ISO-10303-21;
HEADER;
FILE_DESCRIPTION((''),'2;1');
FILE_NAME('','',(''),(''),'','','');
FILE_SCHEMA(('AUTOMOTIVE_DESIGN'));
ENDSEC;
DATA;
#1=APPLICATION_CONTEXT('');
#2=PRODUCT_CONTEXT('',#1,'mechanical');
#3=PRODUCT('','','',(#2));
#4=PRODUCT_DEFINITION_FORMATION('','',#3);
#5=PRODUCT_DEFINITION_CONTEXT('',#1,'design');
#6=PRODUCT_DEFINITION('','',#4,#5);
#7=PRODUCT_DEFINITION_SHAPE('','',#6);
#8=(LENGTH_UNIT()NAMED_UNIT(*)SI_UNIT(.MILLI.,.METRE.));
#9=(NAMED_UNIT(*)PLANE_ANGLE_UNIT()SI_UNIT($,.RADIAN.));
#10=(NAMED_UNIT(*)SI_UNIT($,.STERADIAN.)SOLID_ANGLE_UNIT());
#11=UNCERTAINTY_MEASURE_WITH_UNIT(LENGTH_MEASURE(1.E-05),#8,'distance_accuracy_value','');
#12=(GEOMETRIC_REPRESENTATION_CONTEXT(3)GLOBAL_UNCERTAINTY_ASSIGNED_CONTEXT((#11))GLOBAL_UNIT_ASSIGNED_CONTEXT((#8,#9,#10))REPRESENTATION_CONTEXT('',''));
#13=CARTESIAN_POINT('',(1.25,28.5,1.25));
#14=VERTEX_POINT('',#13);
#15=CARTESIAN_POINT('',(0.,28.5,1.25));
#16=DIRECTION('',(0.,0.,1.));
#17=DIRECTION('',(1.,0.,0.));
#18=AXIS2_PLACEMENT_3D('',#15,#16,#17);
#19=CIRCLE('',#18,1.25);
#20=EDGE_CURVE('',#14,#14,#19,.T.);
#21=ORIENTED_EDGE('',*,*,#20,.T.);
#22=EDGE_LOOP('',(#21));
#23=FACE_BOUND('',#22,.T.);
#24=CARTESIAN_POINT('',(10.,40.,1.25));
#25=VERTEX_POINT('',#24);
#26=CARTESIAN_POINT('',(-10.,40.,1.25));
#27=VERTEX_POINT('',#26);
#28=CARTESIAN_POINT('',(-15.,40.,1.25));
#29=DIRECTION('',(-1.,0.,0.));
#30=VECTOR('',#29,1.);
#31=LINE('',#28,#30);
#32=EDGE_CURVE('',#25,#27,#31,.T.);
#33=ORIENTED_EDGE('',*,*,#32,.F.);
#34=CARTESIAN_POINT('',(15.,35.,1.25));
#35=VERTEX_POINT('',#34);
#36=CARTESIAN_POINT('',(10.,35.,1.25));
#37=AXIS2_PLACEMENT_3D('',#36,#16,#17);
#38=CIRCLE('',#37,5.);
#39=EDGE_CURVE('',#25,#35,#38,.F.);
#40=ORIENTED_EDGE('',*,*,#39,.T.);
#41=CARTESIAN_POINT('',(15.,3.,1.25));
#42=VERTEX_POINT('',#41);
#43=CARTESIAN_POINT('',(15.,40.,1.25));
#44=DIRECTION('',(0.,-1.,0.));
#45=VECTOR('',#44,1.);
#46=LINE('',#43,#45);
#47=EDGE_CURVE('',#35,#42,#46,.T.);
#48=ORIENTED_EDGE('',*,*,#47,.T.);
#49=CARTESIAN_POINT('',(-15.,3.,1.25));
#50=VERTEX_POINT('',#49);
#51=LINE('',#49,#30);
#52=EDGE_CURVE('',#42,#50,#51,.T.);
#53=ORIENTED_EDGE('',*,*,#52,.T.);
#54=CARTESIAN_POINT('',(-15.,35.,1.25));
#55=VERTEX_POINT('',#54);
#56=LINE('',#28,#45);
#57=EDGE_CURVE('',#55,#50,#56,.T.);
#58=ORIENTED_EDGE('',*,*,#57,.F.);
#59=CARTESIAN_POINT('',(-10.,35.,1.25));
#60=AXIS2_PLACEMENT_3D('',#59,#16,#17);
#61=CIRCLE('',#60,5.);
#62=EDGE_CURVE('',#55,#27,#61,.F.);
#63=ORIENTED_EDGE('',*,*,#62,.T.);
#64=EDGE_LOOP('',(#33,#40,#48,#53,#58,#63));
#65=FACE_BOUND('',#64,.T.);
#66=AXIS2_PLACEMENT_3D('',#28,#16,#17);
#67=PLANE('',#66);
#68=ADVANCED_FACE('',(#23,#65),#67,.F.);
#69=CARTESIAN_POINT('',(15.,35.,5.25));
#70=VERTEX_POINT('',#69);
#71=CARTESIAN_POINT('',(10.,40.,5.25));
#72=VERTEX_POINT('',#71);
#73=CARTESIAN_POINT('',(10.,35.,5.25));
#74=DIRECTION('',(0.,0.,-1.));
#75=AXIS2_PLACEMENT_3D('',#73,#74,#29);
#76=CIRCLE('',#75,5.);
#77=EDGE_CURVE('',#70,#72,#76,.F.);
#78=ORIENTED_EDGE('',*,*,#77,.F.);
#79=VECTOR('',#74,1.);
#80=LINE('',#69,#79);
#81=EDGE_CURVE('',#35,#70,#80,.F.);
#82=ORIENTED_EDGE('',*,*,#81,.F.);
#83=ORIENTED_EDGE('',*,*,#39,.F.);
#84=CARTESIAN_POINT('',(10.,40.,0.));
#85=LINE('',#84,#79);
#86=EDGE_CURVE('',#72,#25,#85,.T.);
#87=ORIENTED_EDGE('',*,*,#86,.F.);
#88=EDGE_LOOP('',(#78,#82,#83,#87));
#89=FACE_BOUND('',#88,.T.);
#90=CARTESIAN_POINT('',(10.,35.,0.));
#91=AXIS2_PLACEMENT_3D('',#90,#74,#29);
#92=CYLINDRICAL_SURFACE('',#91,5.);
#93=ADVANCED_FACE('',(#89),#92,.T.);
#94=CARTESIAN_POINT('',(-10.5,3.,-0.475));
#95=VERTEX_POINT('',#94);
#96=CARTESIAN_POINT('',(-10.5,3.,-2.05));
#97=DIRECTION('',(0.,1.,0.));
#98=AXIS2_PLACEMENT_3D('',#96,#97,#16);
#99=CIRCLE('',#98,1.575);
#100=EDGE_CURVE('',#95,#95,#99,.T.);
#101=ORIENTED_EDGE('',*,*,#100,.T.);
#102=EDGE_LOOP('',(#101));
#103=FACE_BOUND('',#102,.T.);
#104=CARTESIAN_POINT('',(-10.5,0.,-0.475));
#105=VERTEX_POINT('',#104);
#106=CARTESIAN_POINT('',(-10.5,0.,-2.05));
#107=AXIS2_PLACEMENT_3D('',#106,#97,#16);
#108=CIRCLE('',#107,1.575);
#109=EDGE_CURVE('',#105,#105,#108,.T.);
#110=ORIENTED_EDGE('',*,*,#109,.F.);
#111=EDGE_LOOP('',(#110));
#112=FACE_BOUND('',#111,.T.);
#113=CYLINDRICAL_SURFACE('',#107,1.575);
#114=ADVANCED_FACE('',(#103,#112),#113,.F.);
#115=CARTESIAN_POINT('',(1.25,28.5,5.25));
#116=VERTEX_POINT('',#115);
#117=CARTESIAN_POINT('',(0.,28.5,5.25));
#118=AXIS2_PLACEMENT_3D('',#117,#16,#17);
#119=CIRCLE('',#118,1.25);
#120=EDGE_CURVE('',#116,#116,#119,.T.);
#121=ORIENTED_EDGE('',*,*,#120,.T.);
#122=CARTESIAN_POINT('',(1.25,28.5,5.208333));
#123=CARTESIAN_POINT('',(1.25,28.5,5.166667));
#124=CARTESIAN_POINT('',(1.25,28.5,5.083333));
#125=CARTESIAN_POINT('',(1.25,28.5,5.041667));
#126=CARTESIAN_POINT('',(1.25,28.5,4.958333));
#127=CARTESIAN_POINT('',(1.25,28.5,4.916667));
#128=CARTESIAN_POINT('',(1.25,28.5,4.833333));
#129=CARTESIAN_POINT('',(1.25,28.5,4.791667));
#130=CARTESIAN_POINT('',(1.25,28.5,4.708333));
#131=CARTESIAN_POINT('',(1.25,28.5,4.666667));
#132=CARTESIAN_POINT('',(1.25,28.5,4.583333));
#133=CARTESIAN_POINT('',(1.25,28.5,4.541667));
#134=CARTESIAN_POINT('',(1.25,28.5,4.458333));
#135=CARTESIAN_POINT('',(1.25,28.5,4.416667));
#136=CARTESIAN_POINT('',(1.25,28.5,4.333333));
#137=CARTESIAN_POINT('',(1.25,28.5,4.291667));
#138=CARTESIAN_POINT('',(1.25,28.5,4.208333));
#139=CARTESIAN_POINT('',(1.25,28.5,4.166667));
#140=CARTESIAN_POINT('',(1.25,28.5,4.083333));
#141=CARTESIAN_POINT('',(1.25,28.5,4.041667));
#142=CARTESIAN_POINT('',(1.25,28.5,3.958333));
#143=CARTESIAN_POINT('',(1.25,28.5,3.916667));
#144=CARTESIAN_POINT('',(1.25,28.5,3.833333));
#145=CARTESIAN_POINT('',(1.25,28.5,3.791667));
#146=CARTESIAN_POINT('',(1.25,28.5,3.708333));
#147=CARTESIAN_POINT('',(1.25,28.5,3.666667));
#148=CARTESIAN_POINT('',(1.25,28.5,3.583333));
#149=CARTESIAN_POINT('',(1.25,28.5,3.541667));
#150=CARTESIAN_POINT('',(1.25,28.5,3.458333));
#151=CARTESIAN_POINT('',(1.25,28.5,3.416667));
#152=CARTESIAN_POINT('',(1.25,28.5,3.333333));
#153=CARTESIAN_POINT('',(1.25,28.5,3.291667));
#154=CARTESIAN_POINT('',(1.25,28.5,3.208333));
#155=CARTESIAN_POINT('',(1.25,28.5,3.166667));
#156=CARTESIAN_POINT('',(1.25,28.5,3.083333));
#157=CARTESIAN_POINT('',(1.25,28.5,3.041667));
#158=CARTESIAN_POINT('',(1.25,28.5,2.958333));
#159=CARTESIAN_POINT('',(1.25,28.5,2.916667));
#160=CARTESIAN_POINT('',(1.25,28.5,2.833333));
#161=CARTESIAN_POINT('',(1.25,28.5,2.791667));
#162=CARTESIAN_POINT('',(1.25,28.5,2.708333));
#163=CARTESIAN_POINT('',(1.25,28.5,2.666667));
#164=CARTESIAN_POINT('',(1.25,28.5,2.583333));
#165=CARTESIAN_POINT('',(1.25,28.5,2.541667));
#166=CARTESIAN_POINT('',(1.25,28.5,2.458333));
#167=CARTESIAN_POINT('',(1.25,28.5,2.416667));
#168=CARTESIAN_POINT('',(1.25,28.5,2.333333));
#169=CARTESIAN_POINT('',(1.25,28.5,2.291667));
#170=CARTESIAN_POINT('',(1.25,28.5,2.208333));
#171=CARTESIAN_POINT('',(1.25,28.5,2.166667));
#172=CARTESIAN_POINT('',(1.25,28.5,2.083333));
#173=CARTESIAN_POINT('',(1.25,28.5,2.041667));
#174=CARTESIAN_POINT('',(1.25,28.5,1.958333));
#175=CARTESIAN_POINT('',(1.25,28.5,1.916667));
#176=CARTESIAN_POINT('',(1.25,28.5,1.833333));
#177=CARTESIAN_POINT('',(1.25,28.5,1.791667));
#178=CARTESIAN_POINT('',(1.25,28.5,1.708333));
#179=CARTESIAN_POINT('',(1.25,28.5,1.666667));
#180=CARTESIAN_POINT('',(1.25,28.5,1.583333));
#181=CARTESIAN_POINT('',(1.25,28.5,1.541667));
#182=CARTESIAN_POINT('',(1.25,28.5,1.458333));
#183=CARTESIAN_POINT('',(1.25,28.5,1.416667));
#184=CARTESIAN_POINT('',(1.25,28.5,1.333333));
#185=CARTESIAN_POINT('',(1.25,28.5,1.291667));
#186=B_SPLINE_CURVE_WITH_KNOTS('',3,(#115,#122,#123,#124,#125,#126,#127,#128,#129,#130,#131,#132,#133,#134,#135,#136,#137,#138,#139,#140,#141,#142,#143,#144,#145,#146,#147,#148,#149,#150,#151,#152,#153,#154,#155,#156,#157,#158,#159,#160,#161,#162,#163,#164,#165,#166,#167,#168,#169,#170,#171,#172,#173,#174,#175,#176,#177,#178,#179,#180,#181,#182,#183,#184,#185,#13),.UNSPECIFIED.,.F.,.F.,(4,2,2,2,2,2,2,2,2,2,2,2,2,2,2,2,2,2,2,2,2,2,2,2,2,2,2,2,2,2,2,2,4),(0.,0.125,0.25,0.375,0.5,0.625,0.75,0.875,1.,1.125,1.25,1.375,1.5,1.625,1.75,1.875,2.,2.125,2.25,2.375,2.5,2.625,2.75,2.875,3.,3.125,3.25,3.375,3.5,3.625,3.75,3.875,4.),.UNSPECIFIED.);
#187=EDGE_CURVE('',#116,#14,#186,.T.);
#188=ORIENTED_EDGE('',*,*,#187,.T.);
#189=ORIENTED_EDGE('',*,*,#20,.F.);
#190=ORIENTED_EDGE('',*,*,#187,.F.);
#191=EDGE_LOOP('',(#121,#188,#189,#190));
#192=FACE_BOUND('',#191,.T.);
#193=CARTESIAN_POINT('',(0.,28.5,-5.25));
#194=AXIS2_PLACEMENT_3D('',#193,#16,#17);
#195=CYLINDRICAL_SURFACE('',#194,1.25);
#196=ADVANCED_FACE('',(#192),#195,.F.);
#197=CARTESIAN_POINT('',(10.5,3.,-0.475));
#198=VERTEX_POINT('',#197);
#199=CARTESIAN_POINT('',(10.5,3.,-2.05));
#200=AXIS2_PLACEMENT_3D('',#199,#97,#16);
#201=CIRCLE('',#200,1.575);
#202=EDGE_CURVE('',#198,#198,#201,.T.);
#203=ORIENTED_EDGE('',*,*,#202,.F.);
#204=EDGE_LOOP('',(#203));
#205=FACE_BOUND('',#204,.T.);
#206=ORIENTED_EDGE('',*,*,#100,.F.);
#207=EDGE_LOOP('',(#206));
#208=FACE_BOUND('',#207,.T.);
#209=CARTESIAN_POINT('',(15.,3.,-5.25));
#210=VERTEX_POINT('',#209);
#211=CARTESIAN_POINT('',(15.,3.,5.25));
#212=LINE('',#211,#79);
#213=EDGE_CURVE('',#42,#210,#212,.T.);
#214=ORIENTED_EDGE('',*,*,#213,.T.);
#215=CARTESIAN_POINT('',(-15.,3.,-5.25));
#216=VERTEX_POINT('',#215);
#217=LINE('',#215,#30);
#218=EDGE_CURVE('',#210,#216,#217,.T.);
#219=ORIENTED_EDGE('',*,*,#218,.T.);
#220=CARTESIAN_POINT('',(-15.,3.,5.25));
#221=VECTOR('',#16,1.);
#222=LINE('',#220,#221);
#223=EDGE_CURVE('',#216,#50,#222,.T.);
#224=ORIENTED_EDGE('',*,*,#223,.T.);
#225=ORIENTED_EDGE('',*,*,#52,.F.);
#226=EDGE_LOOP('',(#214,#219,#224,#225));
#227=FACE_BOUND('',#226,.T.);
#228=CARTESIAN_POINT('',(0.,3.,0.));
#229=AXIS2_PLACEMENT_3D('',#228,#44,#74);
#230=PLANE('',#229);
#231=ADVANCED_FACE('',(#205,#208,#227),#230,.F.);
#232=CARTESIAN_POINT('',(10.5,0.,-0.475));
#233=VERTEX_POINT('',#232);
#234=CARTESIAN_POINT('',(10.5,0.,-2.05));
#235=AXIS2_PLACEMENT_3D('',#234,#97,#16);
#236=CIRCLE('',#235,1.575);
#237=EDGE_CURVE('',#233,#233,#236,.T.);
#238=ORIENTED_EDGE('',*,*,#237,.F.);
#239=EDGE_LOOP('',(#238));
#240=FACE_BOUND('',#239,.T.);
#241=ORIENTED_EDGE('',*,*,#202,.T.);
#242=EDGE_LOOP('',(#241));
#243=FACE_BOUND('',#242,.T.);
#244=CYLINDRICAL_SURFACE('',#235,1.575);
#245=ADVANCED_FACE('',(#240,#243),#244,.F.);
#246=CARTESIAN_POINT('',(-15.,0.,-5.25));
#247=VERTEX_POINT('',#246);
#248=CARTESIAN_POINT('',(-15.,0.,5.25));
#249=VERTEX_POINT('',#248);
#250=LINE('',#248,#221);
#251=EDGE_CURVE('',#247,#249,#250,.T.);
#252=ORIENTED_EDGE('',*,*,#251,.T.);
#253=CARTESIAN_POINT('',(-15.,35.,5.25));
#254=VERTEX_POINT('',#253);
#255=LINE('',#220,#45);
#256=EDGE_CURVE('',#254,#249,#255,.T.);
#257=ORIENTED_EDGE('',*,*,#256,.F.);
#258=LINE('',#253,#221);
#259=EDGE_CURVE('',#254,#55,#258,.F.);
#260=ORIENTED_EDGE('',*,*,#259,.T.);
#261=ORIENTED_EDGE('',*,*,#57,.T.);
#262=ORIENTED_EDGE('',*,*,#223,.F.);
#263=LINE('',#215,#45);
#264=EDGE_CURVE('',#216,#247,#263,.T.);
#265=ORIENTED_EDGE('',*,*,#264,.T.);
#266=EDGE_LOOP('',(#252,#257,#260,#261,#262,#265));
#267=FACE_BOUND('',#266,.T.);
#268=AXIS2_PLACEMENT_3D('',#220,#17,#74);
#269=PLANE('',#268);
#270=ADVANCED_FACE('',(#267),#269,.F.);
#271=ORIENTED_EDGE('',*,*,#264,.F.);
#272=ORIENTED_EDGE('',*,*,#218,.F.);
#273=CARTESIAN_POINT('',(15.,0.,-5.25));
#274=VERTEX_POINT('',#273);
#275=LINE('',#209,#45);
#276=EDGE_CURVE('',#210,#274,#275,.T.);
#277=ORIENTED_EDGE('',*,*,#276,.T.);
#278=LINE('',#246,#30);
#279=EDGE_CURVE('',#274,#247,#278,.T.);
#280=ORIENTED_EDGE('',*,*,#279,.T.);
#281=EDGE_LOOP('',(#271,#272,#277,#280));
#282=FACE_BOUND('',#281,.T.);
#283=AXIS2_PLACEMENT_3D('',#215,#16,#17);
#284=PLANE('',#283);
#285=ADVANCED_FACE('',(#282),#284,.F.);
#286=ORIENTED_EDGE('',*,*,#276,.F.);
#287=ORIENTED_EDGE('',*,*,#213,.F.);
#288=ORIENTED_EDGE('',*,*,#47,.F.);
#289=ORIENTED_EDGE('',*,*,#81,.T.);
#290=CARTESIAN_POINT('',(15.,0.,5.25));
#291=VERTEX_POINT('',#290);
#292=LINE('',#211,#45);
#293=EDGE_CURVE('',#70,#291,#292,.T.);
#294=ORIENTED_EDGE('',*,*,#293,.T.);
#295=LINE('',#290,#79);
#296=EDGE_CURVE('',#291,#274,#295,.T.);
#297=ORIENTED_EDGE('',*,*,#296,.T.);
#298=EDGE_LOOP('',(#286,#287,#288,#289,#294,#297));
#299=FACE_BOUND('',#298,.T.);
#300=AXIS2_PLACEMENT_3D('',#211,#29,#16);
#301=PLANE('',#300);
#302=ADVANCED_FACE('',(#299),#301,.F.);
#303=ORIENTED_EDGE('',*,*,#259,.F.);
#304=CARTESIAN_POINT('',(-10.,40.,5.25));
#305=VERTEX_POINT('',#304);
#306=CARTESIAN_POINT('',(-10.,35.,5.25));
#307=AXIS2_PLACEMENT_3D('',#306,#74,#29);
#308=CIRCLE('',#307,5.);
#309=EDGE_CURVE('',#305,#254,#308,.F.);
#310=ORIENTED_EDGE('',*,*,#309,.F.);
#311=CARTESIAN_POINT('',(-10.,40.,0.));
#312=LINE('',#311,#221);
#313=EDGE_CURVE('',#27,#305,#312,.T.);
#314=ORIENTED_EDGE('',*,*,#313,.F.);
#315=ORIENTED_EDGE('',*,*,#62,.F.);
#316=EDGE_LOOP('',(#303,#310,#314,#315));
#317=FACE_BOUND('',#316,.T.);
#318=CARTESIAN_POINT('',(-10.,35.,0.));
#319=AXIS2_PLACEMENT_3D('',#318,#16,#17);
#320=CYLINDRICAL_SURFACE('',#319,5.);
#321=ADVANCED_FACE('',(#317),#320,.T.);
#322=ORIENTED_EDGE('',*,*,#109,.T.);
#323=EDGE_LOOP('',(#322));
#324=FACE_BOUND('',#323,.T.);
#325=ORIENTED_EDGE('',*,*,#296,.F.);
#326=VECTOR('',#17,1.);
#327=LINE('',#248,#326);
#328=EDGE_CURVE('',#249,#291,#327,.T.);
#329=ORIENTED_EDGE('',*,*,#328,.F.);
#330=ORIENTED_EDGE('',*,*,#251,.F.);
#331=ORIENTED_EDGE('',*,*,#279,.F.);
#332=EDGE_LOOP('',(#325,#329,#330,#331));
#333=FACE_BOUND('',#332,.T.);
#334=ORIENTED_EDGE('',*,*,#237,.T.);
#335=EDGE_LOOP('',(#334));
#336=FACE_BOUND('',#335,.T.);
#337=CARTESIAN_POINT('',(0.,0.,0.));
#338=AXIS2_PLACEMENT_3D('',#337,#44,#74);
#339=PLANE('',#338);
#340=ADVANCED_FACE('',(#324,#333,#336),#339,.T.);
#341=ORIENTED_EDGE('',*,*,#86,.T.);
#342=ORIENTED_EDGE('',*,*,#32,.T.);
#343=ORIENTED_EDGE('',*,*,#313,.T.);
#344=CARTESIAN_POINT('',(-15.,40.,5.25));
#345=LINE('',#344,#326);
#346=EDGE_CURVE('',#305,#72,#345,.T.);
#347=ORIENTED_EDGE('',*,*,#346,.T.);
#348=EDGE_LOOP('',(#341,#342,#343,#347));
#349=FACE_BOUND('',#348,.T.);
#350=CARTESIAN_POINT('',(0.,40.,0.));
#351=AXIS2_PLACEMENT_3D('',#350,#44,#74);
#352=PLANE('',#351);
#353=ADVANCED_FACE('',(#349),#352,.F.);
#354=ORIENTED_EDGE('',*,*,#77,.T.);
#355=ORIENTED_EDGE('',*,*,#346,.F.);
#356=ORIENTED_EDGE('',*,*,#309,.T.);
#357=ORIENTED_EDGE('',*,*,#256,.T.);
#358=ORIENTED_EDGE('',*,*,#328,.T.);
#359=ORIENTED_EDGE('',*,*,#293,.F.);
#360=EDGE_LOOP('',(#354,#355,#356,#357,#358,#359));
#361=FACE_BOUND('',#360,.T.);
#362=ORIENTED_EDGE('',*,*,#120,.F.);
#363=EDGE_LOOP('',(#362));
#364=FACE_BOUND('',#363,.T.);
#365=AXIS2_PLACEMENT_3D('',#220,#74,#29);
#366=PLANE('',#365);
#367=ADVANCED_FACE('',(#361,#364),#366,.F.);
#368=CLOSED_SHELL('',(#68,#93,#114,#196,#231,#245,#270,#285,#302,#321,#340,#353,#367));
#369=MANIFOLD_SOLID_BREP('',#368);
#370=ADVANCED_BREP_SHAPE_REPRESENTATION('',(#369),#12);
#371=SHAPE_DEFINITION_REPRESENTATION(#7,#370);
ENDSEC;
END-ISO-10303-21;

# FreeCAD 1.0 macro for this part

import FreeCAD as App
import Part
import Sketcher


def edges_at(feature, points):
    """Names of the edges that pass closest to the given points."""
    edges = feature.Shape.Edges
    near = lambda p: min(range(len(edges)), key=lambda i: edges[i].distToShape(Part.Vertex(*p))[0])
    return sorted({f"Edge{near(p) + 1}" for p in points})


def add_polygon(sketch, points):
    """Adds a closed chain of lines whose ends are joined by coincident constraints."""
    first, n = sketch.GeometryCount, len(points)
    for a, b in zip(points, points[1:] + points[:1]):
        sketch.addGeometry(Part.LineSegment(App.Vector(*a, 0), App.Vector(*b, 0)), False)
    for i in range(n):
        sketch.addConstraint(Sketcher.Constraint("Coincident", first + i, 2, first + (i + 1) % n, 1))

doc = App.newDocument("Part")
body = doc.addObject("PartDesign::Body", "Body")

sketch1 = body.newObject("Sketcher::SketchObject", "Sketch")
sketch1.AttachmentSupport = (doc.getObject("XZ_Plane"), [""])
sketch1.MapMode = "FlatFace"
add_polygon(sketch1, [(-15, -5), (-15, 5), (15, 5), (15, -5)])
sketch1.addConstraint([
    Sketcher.Constraint("Vertical", 0),
    Sketcher.Constraint("Horizontal", 1),
    Sketcher.Constraint("Vertical", 2),
    Sketcher.Constraint("Horizontal", 3),
    Sketcher.Constraint("Symmetric", 0, 2, 2, 2, -1, 1),
    Sketcher.Constraint("DistanceX", 1, 1, 1, 2, 30.0),
    Sketcher.Constraint("DistanceY", 0, 1, 0, 2, 10.5),
])
pad1 = body.newObject("PartDesign::Pad", "Pad")
pad1.Profile = sketch1
pad1.Length = 3
pad1.Reversed = True

sketch2 = body.newObject("Sketcher::SketchObject", "Sketch001")
sketch2.AttachmentSupport = (doc.getObject("XZ_Plane"), [""])
sketch2.MapMode = "FlatFace"
sketch2.AttachmentOffset = App.Placement(App.Vector(0, 0, -3), App.Rotation())
add_polygon(sketch2, [(-15, 1.2), (-15, 5.2), (15, 5.2), (15, 1.2)])
sketch2.addConstraint([
    Sketcher.Constraint("Vertical", 0),
    Sketcher.Constraint("Horizontal", 1),
    Sketcher.Constraint("Vertical", 2),
    Sketcher.Constraint("Horizontal", 3),
    Sketcher.Constraint("DistanceX", 1, 1, 1, 2, 30.0),
    Sketcher.Constraint("DistanceY", 0, 1, 0, 2, 4.0),
    Sketcher.Constraint("DistanceX", 0, 2, -1, 1, 15.0),
    Sketcher.Constraint("DistanceY", -1, 1, 0, 2, 5.25),
])
pad2 = body.newObject("PartDesign::Pad", "Pad001")
pad2.Profile = sketch2
pad2.Length = 37
pad2.Reversed = True

sketch3 = body.newObject("Sketcher::SketchObject", "Sketch002")
sketch3.AttachmentSupport = (doc.getObject("XZ_Plane"), [""])
sketch3.MapMode = "FlatFace"
sketch3.AttachmentOffset = App.Placement(App.Vector(0, 0, -3), App.Rotation())
sketch3.addGeometry(Part.Circle(App.Vector(-10.5, -2, 0), App.Vector(0, 0, 1), 1.6), False)
sketch3.addConstraint([
    Sketcher.Constraint("Diameter", 0, 3.15),
    Sketcher.Constraint("DistanceX", 0, 3, -1, 1, 10.5),
    Sketcher.Constraint("DistanceY", 0, 3, -1, 1, 2.05),
])
pocket1 = body.newObject("PartDesign::Pocket", "Pocket")
pocket1.Profile = sketch3
pocket1.Type = "ThroughAll"
pocket1.Reversed = True

sketch4 = body.newObject("Sketcher::SketchObject", "Sketch003")
sketch4.AttachmentSupport = (doc.getObject("XZ_Plane"), [""])
sketch4.MapMode = "FlatFace"
sketch4.AttachmentOffset = App.Placement(App.Vector(0, 0, -3), App.Rotation())
sketch4.addGeometry(Part.Circle(App.Vector(10.5, -2, 0), App.Vector(0, 0, 1), 1.6), False)
sketch4.addConstraint([
    Sketcher.Constraint("Diameter", 0, 3.15),
    Sketcher.Constraint("DistanceX", -1, 1, 0, 3, 10.5),
    Sketcher.Constraint("DistanceY", 0, 3, -1, 1, 2.05),
])
pocket2 = body.newObject("PartDesign::Pocket", "Pocket001")
pocket2.Profile = sketch4
pocket2.Type = "ThroughAll"
pocket2.Reversed = True
doc.recompute()

fillet = body.newObject("PartDesign::Fillet", "Fillet")
fillet.Base = (pocket2, edges_at(pocket2, [(-15, 40, 3.25), (15, 40, 3.25)]))
fillet.Radius = 5

sketch5 = body.newObject("Sketcher::SketchObject", "Sketch004")
sketch5.AttachmentSupport = (doc.getObject("XY_Plane"), [""])
sketch5.MapMode = "FlatFace"
sketch5.AttachmentOffset = App.Placement(App.Vector(0, 0, 5.25), App.Rotation())
sketch5.addGeometry(Part.Circle(App.Vector(0, 28.5, 0), App.Vector(0, 0, 1), 1.2), False)
sketch5.addConstraint([
    Sketcher.Constraint("PointOnObject", 0, 3, -2),
    Sketcher.Constraint("Diameter", 0, 2.5),
    Sketcher.Constraint("DistanceY", -1, 1, 0, 3, 28.5),
])
pocket3 = body.newObject("PartDesign::Pocket", "Pocket002")
pocket3.Profile = sketch5
pocket3.Type = "ThroughAll"

doc.recompute()
